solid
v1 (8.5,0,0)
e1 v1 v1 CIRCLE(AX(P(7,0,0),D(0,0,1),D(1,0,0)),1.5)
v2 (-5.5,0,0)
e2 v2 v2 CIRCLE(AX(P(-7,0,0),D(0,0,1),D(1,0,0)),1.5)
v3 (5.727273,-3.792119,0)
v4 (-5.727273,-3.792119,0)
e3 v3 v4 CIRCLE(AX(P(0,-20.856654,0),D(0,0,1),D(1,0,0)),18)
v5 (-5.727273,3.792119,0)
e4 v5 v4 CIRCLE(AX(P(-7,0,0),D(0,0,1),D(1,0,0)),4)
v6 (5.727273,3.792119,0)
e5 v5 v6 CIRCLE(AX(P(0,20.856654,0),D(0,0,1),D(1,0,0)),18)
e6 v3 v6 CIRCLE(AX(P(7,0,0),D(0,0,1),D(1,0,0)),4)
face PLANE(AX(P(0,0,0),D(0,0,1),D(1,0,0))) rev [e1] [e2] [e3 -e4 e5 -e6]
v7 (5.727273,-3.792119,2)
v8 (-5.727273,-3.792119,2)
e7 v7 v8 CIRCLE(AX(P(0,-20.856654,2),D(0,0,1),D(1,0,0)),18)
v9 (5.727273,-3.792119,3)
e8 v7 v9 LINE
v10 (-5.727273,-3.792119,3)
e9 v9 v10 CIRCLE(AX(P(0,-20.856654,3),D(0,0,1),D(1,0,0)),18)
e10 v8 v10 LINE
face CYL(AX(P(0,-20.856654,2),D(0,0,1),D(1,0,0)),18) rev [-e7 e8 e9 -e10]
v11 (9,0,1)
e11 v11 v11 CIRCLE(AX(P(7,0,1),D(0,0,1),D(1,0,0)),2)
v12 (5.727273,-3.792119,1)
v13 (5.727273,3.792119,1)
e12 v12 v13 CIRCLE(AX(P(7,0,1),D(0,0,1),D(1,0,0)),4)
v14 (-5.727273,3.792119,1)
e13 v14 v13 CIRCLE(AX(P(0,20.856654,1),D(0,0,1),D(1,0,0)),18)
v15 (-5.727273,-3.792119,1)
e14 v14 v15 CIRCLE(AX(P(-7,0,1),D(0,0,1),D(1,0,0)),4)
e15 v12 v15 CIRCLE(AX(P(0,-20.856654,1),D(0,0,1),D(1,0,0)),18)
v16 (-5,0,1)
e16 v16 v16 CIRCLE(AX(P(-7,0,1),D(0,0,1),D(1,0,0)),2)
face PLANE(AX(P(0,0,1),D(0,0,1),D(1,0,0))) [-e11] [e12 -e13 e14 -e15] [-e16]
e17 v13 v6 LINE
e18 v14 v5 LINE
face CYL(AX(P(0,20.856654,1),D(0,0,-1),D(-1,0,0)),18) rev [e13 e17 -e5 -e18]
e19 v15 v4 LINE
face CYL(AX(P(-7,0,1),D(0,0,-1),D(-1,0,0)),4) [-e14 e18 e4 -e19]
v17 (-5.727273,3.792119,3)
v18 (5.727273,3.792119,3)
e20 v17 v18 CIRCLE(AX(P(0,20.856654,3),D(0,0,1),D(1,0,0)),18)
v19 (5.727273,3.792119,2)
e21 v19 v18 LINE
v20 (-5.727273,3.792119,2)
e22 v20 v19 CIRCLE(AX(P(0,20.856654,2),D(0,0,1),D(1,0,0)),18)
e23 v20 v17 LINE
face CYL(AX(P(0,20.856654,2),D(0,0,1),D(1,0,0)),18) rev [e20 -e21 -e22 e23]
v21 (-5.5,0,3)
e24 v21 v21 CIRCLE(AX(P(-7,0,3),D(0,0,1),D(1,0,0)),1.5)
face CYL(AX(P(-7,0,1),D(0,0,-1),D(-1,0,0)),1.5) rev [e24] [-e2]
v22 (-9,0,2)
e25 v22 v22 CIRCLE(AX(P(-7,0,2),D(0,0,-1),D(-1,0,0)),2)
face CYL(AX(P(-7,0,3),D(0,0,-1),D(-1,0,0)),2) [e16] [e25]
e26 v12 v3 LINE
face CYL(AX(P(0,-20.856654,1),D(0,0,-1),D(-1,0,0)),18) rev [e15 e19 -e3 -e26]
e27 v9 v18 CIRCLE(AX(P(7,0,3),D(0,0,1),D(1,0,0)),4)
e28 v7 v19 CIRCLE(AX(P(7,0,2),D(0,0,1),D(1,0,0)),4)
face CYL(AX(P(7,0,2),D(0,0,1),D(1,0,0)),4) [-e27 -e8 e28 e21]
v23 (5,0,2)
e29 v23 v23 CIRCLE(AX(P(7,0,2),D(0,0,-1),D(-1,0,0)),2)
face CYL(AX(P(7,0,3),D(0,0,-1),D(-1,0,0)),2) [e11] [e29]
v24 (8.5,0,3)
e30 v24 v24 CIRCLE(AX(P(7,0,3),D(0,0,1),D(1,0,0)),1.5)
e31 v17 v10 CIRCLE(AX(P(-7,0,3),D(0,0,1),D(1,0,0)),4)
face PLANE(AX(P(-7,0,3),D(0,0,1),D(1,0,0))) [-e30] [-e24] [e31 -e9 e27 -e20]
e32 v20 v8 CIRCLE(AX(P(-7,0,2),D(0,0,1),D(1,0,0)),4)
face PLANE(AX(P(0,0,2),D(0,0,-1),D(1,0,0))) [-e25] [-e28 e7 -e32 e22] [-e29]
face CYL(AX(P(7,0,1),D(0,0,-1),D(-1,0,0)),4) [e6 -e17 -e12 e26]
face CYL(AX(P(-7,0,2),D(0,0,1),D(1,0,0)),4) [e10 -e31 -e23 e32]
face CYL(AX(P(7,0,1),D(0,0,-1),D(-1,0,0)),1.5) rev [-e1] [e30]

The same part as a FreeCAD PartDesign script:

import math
import FreeCAD as App
import Part
import Sketcher
from FreeCAD import Vector
Q = App.Units.Quantity

doc = App.newDocument("Part")
body = doc.addObject("PartDesign::Body", "Body")

sketch1 = body.newObject("Sketcher::SketchObject", "Sketch")
sketch1.AttachmentSupport = (doc.getObject("XY_Plane"), [""])
sketch1.MapMode = "FlatFace"
sketch1.addGeometry([
    Part.ArcOfCircle(Part.Circle(Vector(-7, 0, 0), Vector(0, 0, 1), 4), math.radians(71), math.radians(289)),
    Part.ArcOfCircle(Part.Circle(Vector(0, -20.9, 0), Vector(0, 0, 1), 18), math.radians(71), math.radians(109)),
    Part.ArcOfCircle(Part.Circle(Vector(7, 0, 0), Vector(0, 0, 1), 4), math.radians(-109), math.radians(109)),
    Part.ArcOfCircle(Part.Circle(Vector(0, 20.9, 0), Vector(0, 0, 1), 18), math.radians(-109), math.radians(-71)),
    Part.Circle(Vector(-7, 0, 0), Vector(0, 0, 1), 1.5),
    Part.Circle(Vector(7, 0, 0), Vector(0, 0, 1), 1.5),
], False)
sketch1.addConstraint([
    Sketcher.Constraint("Tangent", 0, 2, 1, 2),
    Sketcher.Constraint("Tangent", 1, 1, 2, 1),
    Sketcher.Constraint("Tangent", 2, 2, 3, 2),
    Sketcher.Constraint("Tangent", 3, 1, 0, 1),
    Sketcher.Constraint("Coincident", 4, 3, 0, 3),
    Sketcher.Constraint("Coincident", 5, 3, 2, 3),
    Sketcher.Constraint("Equal", 0, 2),
    Sketcher.Constraint("Equal", 1, 3),
    Sketcher.Constraint("Equal", 4, 5),
    Sketcher.Constraint("Symmetric", 0, 3, 2, 3, -1, 1),
    Sketcher.Constraint("PointOnObject", 0, 3, -1),
    Sketcher.Constraint("Diameter", 4, Q("3 mm")),
    Sketcher.Constraint("Radius", 0, Q("4 mm")),
    Sketcher.Constraint("Radius", 1, Q("18 mm")),
    Sketcher.Constraint("DistanceX", 0, 3, -1, 1, Q("7 mm")),
])
pad1 = body.newObject("PartDesign::Pad", "Pad")
pad1.Profile = sketch1
pad1.Length = 1

sketch2 = body.newObject("Sketcher::SketchObject", "Sketch001")
sketch2.AttachmentSupport = (doc.getObject("XY_Plane"), [""])
sketch2.MapMode = "FlatFace"
sketch2.AttachmentOffset = App.Placement(Vector(0, 0, 1), App.Rotation())
sketch2.addGeometry([
    Part.Circle(Vector(-7, 0, 0), Vector(0, 0, 1), 2),
    Part.Circle(Vector(-7, 0, 0), Vector(0, 0, 1), 1.5),
    Part.Circle(Vector(7, 0, 0), Vector(0, 0, 1), 2),
    Part.Circle(Vector(7, 0, 0), Vector(0, 0, 1), 1.5),
], False)
sketch2.addConstraint([
    Sketcher.Constraint("Coincident", 1, 3, 0, 3),
    Sketcher.Constraint("Coincident", 3, 3, 2, 3),
    Sketcher.Constraint("Equal", 0, 2),
    Sketcher.Constraint("Equal", 1, 3),
    Sketcher.Constraint("Symmetric", 0, 3, 2, 3, -1, 1),
    Sketcher.Constraint("PointOnObject", 0, 3, -1),
    Sketcher.Constraint("Diameter", 0, Q("4 mm")),
    Sketcher.Constraint("Diameter", 1, Q("3 mm")),
    Sketcher.Constraint("DistanceX", 0, 3, -1, 1, Q("7 mm")),
])
pad2 = body.newObject("PartDesign::Pad", "Pad001")
pad2.Profile = sketch2
pad2.Length = 2
doc.recompute()

datumplane = body.newObject("PartDesign::Plane", "DatumPlane")
datumplane.AttachmentSupport = (doc.getObject("XY_Plane"), [""])
datumplane.MapMode = "FlatFace"
datumplane.AttachmentOffset = App.Placement(Vector(0, 0, 1.5), App.Rotation())
mirrored = body.newObject("PartDesign::Mirrored", "Mirrored")
mirrored.Originals = [pad1]
mirrored.MirrorPlane = (datumplane, [""])
body.Tip = mirrored

doc.recompute()
